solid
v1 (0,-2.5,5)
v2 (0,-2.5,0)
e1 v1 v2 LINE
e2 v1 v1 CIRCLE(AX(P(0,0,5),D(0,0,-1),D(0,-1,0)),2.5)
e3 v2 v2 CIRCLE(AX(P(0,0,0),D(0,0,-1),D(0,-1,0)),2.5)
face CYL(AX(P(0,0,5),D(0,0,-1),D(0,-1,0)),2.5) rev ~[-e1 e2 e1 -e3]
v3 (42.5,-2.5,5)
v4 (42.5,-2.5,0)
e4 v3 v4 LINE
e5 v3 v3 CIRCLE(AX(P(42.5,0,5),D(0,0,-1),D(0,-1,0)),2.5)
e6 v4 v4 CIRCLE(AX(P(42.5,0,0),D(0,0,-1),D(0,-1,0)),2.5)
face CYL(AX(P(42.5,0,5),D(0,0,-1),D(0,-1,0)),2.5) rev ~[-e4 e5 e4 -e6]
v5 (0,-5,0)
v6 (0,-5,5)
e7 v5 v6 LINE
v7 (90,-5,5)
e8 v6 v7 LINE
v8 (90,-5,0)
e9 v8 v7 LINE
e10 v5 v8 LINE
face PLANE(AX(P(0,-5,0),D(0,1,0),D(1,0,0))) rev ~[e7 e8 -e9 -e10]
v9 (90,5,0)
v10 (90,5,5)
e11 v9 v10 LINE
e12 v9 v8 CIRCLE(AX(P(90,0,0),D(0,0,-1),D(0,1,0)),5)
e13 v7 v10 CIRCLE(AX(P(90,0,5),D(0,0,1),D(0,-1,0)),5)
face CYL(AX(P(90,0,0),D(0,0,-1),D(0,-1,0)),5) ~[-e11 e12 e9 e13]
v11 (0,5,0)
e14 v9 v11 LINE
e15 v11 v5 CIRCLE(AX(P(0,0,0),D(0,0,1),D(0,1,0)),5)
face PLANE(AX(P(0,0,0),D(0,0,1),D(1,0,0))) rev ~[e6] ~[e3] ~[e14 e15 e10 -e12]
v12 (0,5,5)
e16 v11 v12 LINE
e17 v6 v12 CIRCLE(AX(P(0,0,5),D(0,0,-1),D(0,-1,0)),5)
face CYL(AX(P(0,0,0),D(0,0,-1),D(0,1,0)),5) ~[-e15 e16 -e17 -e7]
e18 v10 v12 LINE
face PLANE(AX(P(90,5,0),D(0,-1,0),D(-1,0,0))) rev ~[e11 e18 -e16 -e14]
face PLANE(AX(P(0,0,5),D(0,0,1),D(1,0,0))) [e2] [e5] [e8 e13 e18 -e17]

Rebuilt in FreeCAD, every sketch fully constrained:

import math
import FreeCAD as App
import Part
import Sketcher
from FreeCAD import Vector
Q = App.Units.Quantity

doc = App.newDocument("Part")
body = doc.addObject("PartDesign::Body", "Body")

# Sketch on XY plane
sketch1 = body.newObject("Sketcher::SketchObject", "Sketch")
sketch1.AttachmentSupport = (doc.getObject("XY_Plane"), [""])
sketch1.MapMode = "FlatFace"
sketch1.addGeometry([
    Part.ArcOfCircle(Part.Circle(Vector(0, 0, 0), Vector(0, 0, 1), 5), math.radians(90), math.radians(270)),
    Part.LineSegment(Vector(0, -5, 0), Vector(90, -5, 0)),
    Part.ArcOfCircle(Part.Circle(Vector(90, 0, 0), Vector(0, 0, 1), 5), math.radians(-90), math.radians(90)),
    Part.LineSegment(Vector(90, 5, 0), Vector(0, 5, 0)),
], False)
sketch1.addConstraint([
    Sketcher.Constraint("Tangent", 0, 2, 1, 1),
    Sketcher.Constraint("Tangent", 1, 2, 2, 1),
    Sketcher.Constraint("Tangent", 2, 2, 3, 1),
    Sketcher.Constraint("Tangent", 3, 2, 0, 1),
    Sketcher.Constraint("Horizontal", 1),
    Sketcher.Constraint("Horizontal", 3),
    Sketcher.Constraint("Coincident", 0, 3, -1, 1),
    Sketcher.Constraint("Radius", 0, Q("5 mm")),
    Sketcher.Constraint("DistanceX", 1, 1, 1, 2, Q("90 mm")),
])
pad1 = body.newObject("PartDesign::Pad", "Pad")
pad1.Profile = sketch1
pad1.Length = 5

# Sketch on XY plane
sketch2 = body.newObject("Sketcher::SketchObject", "Sketch001")
sketch2.AttachmentSupport = (doc.getObject("XY_Plane"), [""])
sketch2.MapMode = "FlatFace"
sketch2.AttachmentOffset = App.Placement(Vector(0, 0, 5), App.Rotation())
sketch2.addGeometry(Part.Circle(Vector(0, 0, 0), Vector(0, 0, 1), 2.5), False)
sketch2.addConstraint([
    Sketcher.Constraint("Coincident", 0, 3, -1, 1),
    Sketcher.Constraint("Diameter", 0, Q("5 mm")),
])
doc.recompute()
hole = body.newObject("PartDesign::Hole", "Hole")
hole.Profile = sketch2
hole.ThreadType = "None"
hole.Diameter = 5
hole.DepthType = "ThroughAll"

# Sketch on XY plane
sketch3 = body.newObject("Sketcher::SketchObject", "Sketch002")
sketch3.AttachmentSupport = (doc.getObject("XY_Plane"), [""])
sketch3.MapMode = "FlatFace"
sketch3.AttachmentOffset = App.Placement(Vector(0, 0, 5), App.Rotation())
sketch3.addGeometry(Part.Circle(Vector(42.5, 0, 0), Vector(0, 0, 1), 2.5), False)
sketch3.addConstraint([
    Sketcher.Constraint("PointOnObject", 0, 3, -1),
    Sketcher.Constraint("Diameter", 0, Q("5 mm")),
    Sketcher.Constraint("DistanceX", -1, 1, 0, 3, Q("42.5 mm")),
])
doc.recompute()
hole2 = body.newObject("PartDesign::Hole", "Hole001")
hole2.Profile = sketch3
hole2.ThreadType = "None"
hole2.Diameter = 5
hole2.DepthType = "ThroughAll"

doc.recompute()
